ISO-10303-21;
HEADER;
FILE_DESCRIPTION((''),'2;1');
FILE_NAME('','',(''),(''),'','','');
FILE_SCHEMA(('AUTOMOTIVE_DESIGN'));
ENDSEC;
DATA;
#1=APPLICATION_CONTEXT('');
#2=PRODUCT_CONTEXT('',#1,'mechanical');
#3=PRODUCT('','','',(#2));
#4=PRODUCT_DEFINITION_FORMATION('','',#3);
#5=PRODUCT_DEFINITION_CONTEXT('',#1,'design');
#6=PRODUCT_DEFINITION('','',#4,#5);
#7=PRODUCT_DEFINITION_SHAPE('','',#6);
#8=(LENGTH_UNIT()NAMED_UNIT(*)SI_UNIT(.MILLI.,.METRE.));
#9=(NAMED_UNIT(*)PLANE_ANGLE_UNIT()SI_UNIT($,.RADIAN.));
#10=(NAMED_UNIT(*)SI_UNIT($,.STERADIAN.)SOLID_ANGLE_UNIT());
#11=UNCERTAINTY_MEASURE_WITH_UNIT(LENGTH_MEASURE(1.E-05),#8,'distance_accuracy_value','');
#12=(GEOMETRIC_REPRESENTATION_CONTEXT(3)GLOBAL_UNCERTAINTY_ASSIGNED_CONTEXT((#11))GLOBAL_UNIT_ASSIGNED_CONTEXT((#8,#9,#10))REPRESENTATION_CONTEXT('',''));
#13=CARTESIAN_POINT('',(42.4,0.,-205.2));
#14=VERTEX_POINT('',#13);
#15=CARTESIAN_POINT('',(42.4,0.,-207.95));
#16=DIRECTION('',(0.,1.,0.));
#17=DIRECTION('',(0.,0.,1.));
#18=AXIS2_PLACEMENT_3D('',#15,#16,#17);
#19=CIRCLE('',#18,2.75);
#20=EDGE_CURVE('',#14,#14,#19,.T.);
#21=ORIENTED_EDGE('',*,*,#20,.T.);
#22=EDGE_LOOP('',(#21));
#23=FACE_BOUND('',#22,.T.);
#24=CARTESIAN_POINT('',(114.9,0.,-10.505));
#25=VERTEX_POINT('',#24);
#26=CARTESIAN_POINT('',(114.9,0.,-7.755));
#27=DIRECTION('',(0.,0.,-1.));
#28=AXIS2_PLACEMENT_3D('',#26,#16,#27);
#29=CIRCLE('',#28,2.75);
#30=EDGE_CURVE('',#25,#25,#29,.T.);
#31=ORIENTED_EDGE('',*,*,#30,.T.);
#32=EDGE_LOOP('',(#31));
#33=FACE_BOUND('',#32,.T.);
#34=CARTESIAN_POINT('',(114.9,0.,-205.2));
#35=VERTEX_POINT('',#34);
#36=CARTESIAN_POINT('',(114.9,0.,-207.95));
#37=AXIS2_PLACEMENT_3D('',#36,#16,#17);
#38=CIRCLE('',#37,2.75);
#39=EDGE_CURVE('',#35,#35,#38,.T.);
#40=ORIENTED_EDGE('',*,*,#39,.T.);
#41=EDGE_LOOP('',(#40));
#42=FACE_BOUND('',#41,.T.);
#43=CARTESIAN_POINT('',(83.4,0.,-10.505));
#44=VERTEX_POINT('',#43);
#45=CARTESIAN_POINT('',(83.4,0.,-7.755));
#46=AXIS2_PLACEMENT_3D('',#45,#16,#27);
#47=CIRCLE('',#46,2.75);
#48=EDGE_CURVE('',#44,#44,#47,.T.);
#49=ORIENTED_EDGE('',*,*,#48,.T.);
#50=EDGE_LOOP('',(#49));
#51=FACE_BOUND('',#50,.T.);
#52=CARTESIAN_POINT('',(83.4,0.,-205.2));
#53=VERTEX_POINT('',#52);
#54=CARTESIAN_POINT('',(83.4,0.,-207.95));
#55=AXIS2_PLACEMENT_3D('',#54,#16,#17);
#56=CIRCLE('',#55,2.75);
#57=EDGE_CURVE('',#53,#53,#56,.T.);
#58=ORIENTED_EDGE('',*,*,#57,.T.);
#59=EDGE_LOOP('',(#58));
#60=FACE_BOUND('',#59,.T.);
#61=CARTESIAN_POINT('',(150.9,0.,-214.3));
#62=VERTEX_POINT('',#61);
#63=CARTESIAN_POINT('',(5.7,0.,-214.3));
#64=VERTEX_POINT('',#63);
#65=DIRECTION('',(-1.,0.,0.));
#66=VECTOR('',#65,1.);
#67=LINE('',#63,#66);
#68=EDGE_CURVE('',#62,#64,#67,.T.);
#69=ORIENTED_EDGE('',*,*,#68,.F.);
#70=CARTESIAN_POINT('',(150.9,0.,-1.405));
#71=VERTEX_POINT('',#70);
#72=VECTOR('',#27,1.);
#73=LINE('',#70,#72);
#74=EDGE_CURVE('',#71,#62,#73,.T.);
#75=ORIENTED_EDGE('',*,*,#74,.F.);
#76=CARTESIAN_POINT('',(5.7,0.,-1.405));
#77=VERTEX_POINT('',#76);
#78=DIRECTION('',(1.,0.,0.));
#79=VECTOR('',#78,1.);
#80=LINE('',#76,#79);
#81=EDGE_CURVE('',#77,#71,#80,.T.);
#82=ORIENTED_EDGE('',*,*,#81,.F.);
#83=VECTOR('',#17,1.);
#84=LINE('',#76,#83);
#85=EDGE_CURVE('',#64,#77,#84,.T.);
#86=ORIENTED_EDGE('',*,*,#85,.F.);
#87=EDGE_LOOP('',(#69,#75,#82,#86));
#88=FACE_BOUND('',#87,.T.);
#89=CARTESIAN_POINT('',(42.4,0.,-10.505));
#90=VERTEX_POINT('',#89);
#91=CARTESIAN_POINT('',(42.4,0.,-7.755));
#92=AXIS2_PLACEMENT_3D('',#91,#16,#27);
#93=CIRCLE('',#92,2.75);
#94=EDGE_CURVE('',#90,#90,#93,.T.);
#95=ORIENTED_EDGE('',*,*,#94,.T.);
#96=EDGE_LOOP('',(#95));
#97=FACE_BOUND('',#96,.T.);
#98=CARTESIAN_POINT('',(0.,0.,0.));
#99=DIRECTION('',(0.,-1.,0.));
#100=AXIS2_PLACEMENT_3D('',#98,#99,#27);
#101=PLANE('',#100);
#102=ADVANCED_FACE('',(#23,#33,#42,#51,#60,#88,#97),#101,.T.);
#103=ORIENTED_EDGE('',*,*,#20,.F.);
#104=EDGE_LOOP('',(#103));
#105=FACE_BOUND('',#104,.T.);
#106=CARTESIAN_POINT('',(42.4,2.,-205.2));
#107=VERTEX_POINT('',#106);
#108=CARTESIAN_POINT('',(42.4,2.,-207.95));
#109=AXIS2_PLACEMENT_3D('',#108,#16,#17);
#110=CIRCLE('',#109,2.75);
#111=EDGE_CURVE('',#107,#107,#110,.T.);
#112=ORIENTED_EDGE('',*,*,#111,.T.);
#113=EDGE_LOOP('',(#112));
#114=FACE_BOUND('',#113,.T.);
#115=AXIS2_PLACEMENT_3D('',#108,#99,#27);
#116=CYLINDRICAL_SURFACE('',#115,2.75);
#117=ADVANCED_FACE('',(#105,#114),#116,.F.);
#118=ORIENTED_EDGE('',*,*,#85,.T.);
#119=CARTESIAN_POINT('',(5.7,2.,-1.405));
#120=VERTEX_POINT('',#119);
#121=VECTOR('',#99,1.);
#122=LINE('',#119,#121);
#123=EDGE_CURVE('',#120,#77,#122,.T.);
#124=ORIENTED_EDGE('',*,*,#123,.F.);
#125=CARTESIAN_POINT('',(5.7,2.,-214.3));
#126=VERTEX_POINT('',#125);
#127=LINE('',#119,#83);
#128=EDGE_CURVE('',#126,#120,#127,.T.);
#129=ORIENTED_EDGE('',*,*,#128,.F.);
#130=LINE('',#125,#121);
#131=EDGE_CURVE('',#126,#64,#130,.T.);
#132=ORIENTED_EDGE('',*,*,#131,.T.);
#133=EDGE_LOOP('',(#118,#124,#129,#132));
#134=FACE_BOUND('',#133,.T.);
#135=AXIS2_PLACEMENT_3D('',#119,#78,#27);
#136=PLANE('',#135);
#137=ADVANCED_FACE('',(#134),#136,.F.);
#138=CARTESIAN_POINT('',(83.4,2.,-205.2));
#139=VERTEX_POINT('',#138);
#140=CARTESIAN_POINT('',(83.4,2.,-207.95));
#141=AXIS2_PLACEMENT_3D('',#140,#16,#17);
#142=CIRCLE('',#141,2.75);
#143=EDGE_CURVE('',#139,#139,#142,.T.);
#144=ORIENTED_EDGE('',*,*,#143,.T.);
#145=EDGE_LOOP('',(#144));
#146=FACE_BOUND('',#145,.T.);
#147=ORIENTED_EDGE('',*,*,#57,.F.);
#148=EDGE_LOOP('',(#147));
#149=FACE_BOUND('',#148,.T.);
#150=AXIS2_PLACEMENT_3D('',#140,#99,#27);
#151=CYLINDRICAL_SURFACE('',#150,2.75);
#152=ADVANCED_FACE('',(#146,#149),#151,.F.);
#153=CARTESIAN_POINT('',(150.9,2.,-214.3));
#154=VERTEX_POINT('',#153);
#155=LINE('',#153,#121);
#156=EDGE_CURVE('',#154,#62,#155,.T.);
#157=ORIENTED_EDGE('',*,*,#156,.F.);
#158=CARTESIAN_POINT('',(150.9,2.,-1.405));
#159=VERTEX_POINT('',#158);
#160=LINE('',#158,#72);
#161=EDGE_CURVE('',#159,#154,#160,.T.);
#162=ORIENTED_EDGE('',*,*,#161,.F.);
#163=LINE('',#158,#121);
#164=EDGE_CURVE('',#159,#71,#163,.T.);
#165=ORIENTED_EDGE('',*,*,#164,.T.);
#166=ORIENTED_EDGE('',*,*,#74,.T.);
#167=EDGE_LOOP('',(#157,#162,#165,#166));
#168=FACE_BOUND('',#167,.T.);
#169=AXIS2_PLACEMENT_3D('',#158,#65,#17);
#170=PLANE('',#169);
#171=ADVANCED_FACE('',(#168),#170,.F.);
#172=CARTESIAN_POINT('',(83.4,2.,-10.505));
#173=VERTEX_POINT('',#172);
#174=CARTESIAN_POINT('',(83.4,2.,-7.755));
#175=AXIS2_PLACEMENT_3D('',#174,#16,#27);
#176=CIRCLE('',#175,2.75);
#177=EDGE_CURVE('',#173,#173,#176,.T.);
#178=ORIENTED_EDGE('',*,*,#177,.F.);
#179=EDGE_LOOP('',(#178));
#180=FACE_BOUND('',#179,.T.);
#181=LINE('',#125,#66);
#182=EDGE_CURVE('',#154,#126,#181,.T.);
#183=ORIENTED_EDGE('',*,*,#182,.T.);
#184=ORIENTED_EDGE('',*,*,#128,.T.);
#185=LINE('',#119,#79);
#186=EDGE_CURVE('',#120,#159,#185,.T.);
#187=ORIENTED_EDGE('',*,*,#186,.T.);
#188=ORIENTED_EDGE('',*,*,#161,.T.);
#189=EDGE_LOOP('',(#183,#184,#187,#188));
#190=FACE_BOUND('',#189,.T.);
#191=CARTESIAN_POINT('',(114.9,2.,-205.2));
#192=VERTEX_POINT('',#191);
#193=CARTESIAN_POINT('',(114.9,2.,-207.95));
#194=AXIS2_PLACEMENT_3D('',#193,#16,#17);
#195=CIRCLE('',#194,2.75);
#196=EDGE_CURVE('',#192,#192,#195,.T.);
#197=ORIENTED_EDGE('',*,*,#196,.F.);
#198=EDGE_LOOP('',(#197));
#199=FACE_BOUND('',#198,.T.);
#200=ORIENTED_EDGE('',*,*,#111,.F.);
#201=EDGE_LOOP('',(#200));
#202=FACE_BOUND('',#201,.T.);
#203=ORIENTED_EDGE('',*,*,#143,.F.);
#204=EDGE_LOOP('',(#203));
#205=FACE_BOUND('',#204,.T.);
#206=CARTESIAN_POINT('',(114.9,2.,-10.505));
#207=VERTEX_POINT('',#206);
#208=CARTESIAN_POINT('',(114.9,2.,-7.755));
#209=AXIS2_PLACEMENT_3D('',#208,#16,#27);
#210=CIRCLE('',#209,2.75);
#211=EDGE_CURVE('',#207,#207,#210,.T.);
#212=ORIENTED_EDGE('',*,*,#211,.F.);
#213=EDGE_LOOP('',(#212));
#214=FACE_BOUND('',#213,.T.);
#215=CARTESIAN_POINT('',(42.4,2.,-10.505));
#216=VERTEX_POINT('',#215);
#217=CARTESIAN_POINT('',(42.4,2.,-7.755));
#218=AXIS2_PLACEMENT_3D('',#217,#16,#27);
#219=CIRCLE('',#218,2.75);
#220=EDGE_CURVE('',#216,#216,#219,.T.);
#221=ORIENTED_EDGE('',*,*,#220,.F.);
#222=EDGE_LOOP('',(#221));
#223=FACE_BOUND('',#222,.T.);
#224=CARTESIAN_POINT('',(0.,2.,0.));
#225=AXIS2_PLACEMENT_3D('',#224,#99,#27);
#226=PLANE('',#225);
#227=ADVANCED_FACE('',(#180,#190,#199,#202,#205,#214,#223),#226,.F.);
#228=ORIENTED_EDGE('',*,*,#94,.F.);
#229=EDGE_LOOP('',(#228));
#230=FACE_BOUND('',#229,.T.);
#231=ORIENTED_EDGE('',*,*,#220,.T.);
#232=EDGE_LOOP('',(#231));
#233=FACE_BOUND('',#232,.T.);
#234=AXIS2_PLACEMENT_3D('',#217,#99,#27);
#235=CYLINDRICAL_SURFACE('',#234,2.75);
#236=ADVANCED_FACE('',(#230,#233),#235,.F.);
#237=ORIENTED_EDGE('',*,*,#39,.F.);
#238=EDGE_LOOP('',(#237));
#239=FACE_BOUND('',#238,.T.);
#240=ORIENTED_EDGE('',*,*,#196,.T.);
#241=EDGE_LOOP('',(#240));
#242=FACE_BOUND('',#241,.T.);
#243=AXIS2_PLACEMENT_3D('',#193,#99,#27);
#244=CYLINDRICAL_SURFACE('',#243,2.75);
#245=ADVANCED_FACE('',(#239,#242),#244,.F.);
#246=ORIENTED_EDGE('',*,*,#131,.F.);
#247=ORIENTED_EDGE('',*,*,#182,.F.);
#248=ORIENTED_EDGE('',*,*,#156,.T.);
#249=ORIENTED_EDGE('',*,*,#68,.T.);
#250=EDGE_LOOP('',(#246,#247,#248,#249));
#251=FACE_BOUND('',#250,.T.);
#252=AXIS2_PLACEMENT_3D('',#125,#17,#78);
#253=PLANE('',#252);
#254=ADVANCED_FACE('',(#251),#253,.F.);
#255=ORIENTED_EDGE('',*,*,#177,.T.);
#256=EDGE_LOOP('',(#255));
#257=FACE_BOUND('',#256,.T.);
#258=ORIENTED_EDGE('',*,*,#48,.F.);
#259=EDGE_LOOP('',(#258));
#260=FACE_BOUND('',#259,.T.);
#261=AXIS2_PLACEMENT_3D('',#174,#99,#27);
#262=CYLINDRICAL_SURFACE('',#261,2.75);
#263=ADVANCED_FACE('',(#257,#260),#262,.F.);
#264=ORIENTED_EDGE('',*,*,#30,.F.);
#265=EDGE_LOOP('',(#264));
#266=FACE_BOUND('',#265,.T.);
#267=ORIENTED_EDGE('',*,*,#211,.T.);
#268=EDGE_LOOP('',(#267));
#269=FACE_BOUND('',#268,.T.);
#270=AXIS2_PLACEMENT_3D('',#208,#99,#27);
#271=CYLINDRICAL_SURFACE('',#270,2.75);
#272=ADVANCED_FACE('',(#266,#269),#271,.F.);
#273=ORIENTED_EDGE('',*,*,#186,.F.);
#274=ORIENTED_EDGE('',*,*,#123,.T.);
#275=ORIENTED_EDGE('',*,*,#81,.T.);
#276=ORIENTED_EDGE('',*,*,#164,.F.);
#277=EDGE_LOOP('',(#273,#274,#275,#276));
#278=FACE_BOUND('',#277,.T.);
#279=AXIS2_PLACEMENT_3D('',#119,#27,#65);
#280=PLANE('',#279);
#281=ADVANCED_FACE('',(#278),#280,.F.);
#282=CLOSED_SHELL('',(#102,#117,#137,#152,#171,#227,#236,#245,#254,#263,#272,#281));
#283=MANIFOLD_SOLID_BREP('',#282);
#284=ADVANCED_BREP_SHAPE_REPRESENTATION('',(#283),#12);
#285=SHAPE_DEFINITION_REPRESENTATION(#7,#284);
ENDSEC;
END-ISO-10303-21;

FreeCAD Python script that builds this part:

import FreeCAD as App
import Part
import Sketcher

V = App.Vector


def add_polygon(sketch, points):
    """Adds a closed chain of lines whose ends are joined by coincident constraints."""
    first, n = sketch.GeometryCount, len(points)
    for a, b in zip(points, points[1:] + points[:1]):
        sketch.addGeometry(Part.LineSegment(App.Vector(*a, 0), App.Vector(*b, 0)), False)
    for i in range(n):
        sketch.addConstraint(Sketcher.Constraint("Coincident", first + i, 2, first + (i + 1) % n, 1))

doc = App.newDocument("Part")
params = doc.addObject("Spreadsheet::Sheet", "Params")
for row, (alias, value) in enumerate([
    ("sketch1_diameter", "5.5 mm"),
    ("sketch1_width", "145.2 mm"),
    ("pad1_length", "2 mm"),
], start=1):
    params.set(f"A{row}", alias)
    params.set(f"B{row}", "=" + value)
    params.setAlias(f"B{row}", alias)

body = doc.addObject("PartDesign::Body", "Body")

# Sketch on XZ plane
sketch1 = body.newObject("Sketcher::SketchObject", "Sketch")
sketch1.AttachmentSupport = (doc.getObject("XZ_Plane"), [""])
sketch1.MapMode = "FlatFace"
add_polygon(sketch1, [(5.7, -214.3), (5.7, -1.4), (150.9, -1.4), (150.9, -214.3)])  # lines 0-3
sketch1.addGeometry(Part.Circle(V(42.4, -7.8, 0), V(0, 0, 1), 2.8), False)  # 4
sketch1.addGeometry(Part.Circle(V(83.4, -7.8, 0), V(0, 0, 1), 2.8), False)  # 5
sketch1.addGeometry(Part.Circle(V(114.9, -7.8, 0), V(0, 0, 1), 2.8), False)  # 6
sketch1.addGeometry(Part.Circle(V(42.4, -207.9, 0), V(0, 0, 1), 2.8), False)  # 7
sketch1.addGeometry(Part.Circle(V(83.4, -207.9, 0), V(0, 0, 1), 2.8), False)  # 8
sketch1.addGeometry(Part.Circle(V(114.9, -207.9, 0), V(0, 0, 1), 2.8), False)  # 9
sketch1.addConstraint(Sketcher.Constraint("Vertical", 0))
sketch1.addConstraint(Sketcher.Constraint("Horizontal", 1))
sketch1.addConstraint(Sketcher.Constraint("Vertical", 2))
sketch1.addConstraint(Sketcher.Constraint("Horizontal", 3))
sketch1.addConstraint(Sketcher.Constraint("Equal", 4, 5))
sketch1.addConstraint(Sketcher.Constraint("Equal", 5, 6))
sketch1.addConstraint(Sketcher.Constraint("Equal", 6, 7))
sketch1.addConstraint(Sketcher.Constraint("Equal", 7, 8))
sketch1.addConstraint(Sketcher.Constraint("Equal", 8, 9))
sketch1.addConstraint(Sketcher.Constraint("Horizontal", 4, 3, 5, 3))
sketch1.addConstraint(Sketcher.Constraint("Horizontal", 5, 3, 6, 3))
sketch1.addConstraint(Sketcher.Constraint("Horizontal", 7, 3, 8, 3))
sketch1.addConstraint(Sketcher.Constraint("Horizontal", 8, 3, 9, 3))
sketch1.addConstraint(Sketcher.Constraint("Vertical", 4, 3, 7, 3))
sketch1.addConstraint(Sketcher.Constraint("Vertical", 5, 3, 8, 3))
sketch1.addConstraint(Sketcher.Constraint("Vertical", 6, 3, 9, 3))
sketch1.addConstraint(Sketcher.Constraint("Diameter", 4, 5.5))
sketch1.addConstraint(Sketcher.Constraint("DistanceX", 1, 1, 1, 2, 145.2))
sketch1.addConstraint(Sketcher.Constraint("DistanceX", 4, 3, 5, 3, 41.0))
sketch1.addConstraint(Sketcher.Constraint("DistanceX", 6, 3, 1, 2, 36.0))
sketch1.addConstraint(Sketcher.Constraint("DistanceX", -1, 1, 4, 3, 42.4))
sketch1.addConstraint(Sketcher.Constraint("DistanceX", -1, 1, 6, 3, 114.9))
sketch1.addConstraint(Sketcher.Constraint("DistanceY", 2, 2, -1, 1, 214.3))
sketch1.addConstraint(Sketcher.Constraint("DistanceY", 0, 1, 0, 2, 212.895))
sketch1.addConstraint(Sketcher.Constraint("DistanceY", 7, 3, -1, 1, 207.95))
sketch1.addConstraint(Sketcher.Constraint("DistanceY", 4, 3, 0, 2, 6.35))
sketch1.setExpression("Constraints[20]", "Params.sketch1_diameter")
sketch1.setExpression("Constraints[21]", "Params.sketch1_width")
pad1 = body.newObject("PartDesign::Pad", "Pad")
pad1.Profile = sketch1
pad1.setExpression("Length", "Params.pad1_length")
pad1.Reversed = True

doc.recompute()
